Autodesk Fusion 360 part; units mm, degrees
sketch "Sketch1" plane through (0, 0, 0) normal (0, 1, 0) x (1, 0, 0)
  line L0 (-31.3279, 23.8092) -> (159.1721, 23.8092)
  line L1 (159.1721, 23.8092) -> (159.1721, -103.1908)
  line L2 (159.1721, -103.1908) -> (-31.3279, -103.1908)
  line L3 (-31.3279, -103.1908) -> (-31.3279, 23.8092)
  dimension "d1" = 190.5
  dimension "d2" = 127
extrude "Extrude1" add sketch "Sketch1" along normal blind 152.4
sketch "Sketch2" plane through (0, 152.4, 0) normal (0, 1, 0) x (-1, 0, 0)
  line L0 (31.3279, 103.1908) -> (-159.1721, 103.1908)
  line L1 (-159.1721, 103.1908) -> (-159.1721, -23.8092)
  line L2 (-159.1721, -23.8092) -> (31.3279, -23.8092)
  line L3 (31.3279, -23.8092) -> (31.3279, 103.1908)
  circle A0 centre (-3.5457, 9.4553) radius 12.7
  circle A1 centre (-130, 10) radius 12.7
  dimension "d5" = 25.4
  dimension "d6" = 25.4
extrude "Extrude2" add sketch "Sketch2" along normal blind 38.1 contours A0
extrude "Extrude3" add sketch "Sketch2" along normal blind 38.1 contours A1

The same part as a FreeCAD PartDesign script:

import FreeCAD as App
import Part
import Sketcher
from FreeCAD import Vector
Q = App.Units.Quantity

doc = App.newDocument("Part")
params = doc.addObject("Spreadsheet::Sheet", "Params")
for row, (alias, value) in enumerate([
    ("sketch1_height", "5 in"),
    ("sketch1_width", "7.5 in"),
    ("pad1_length", "6 in"),
    ("sketch2_diameter", "1 in"),
    ("pad2_length", "1.5 in"),
    ("sketch3_diameter", "1 in"),
    ("pad3_length", "1.5 in"),
], start=1):
    params.set(f"A{row}", alias)
    params.set(f"B{row}", "=" + value)
    params.setAlias(f"B{row}", alias)

body = doc.addObject("PartDesign::Body", "Body")

# Sketch on XZ plane
sketch1 = body.newObject("Sketcher::SketchObject", "Sketch")
sketch1.AttachmentSupport = (doc.getObject("XZ_Plane"), [""])
sketch1.MapMode = "FlatFace"
sketch1.addGeometry(Part.LineSegment(Vector(159.1721, -23.8092, 0), Vector(-31.3279, -23.8092, 0)), False)
sketch1.addGeometry(Part.LineSegment(Vector(-31.3279, -23.8092, 0), Vector(-31.3279, 103.1908, 0)), False)
sketch1.addGeometry(Part.LineSegment(Vector(-31.3279, 103.1908, 0), Vector(159.1721, 103.1908, 0)), False)
sketch1.addGeometry(Part.LineSegment(Vector(159.1721, 103.1908, 0), Vector(159.1721, -23.8092, 0)), False)
sketch1.addConstraint(Sketcher.Constraint("Coincident", 0, 2, 1, 1))
sketch1.addConstraint(Sketcher.Constraint("Coincident", 1, 2, 2, 1))
sketch1.addConstraint(Sketcher.Constraint("Coincident", 2, 2, 3, 1))
sketch1.addConstraint(Sketcher.Constraint("Coincident", 3, 2, 0, 1))
sketch1.addConstraint(Sketcher.Constraint("Horizontal", 0))
sketch1.addConstraint(Sketcher.Constraint("Vertical", 1))
sketch1.addConstraint(Sketcher.Constraint("Horizontal", 2))
sketch1.addConstraint(Sketcher.Constraint("Vertical", 3))
sketch1.addConstraint(Sketcher.Constraint("DistanceY", 1, 1, 1, 2, Q("5 in")))
sketch1.addConstraint(Sketcher.Constraint("DistanceX", 0, 2, 0, 1, Q("7.5 in")))
sketch1.addConstraint(Sketcher.Constraint("DistanceX", 0, 2, -1, 1, 31.328))
sketch1.addConstraint(Sketcher.Constraint("DistanceY", 0, 2, -1, 1, 23.8092))
sketch1.setExpression("Constraints[8]", "Params.sketch1_height")
sketch1.setExpression("Constraints[9]", "Params.sketch1_width")
pad1 = body.newObject("PartDesign::Pad", "Pad")
pad1.Profile = sketch1
pad1.setExpression("Length", "Params.pad1_length")
pad1.Reversed = True

# Sketch on XZ plane
sketch2 = body.newObject("Sketcher::SketchObject", "Sketch001")
sketch2.AttachmentSupport = (doc.getObject("XZ_Plane"), [""])
sketch2.MapMode = "FlatFace"
sketch2.AttachmentOffset = App.Placement(Vector(0, 0, -6 * 25.4), App.Rotation())
sketch2.addGeometry(Part.Circle(Vector(3.5457, 9.4553, 0), Vector(0, 0, 1), 12.7), False)
sketch2.addConstraint(Sketcher.Constraint("Diameter", 0, Q("1 in")))
sketch2.addConstraint(Sketcher.Constraint("DistanceX", -1, 1, 0, 3, Q("0.1396 in")))
sketch2.addConstraint(Sketcher.Constraint("DistanceY", -1, 1, 0, 3, 9.4553))
sketch2.setExpression("Constraints[0]", "Params.sketch2_diameter")
pad2 = body.newObject("PartDesign::Pad", "Pad001")
pad2.Profile = sketch2
pad2.setExpression("Length", "Params.pad2_length")
pad2.Reversed = True

# Sketch on XZ plane
sketch3 = body.newObject("Sketcher::SketchObject", "Sketch002")
sketch3.AttachmentSupport = (doc.getObject("XZ_Plane"), [""])
sketch3.MapMode = "FlatFace"
sketch3.AttachmentOffset = App.Placement(Vector(0, 0, -6 * 25.4), App.Rotation())
sketch3.addGeometry(Part.Circle(Vector(130, 10, 0), Vector(0, 0, 1), 12.7), False)
sketch3.addConstraint(Sketcher.Constraint("Diameter", 0, Q("1 in")))
sketch3.addConstraint(Sketcher.Constraint("DistanceX", -1, 1, 0, 3, Q("5.1181 in")))
sketch3.addConstraint(Sketcher.Constraint("DistanceY", -1, 1, 0, 3, Q("0.3937 in")))
sketch3.setExpression("Constraints[0]", "Params.sketch3_diameter")
pad3 = body.newObject("PartDesign::Pad", "Pad002")
pad3.Profile = sketch3
pad3.setExpression("Length", "Params.pad3_length")
pad3.Reversed = True

doc.recompute()
